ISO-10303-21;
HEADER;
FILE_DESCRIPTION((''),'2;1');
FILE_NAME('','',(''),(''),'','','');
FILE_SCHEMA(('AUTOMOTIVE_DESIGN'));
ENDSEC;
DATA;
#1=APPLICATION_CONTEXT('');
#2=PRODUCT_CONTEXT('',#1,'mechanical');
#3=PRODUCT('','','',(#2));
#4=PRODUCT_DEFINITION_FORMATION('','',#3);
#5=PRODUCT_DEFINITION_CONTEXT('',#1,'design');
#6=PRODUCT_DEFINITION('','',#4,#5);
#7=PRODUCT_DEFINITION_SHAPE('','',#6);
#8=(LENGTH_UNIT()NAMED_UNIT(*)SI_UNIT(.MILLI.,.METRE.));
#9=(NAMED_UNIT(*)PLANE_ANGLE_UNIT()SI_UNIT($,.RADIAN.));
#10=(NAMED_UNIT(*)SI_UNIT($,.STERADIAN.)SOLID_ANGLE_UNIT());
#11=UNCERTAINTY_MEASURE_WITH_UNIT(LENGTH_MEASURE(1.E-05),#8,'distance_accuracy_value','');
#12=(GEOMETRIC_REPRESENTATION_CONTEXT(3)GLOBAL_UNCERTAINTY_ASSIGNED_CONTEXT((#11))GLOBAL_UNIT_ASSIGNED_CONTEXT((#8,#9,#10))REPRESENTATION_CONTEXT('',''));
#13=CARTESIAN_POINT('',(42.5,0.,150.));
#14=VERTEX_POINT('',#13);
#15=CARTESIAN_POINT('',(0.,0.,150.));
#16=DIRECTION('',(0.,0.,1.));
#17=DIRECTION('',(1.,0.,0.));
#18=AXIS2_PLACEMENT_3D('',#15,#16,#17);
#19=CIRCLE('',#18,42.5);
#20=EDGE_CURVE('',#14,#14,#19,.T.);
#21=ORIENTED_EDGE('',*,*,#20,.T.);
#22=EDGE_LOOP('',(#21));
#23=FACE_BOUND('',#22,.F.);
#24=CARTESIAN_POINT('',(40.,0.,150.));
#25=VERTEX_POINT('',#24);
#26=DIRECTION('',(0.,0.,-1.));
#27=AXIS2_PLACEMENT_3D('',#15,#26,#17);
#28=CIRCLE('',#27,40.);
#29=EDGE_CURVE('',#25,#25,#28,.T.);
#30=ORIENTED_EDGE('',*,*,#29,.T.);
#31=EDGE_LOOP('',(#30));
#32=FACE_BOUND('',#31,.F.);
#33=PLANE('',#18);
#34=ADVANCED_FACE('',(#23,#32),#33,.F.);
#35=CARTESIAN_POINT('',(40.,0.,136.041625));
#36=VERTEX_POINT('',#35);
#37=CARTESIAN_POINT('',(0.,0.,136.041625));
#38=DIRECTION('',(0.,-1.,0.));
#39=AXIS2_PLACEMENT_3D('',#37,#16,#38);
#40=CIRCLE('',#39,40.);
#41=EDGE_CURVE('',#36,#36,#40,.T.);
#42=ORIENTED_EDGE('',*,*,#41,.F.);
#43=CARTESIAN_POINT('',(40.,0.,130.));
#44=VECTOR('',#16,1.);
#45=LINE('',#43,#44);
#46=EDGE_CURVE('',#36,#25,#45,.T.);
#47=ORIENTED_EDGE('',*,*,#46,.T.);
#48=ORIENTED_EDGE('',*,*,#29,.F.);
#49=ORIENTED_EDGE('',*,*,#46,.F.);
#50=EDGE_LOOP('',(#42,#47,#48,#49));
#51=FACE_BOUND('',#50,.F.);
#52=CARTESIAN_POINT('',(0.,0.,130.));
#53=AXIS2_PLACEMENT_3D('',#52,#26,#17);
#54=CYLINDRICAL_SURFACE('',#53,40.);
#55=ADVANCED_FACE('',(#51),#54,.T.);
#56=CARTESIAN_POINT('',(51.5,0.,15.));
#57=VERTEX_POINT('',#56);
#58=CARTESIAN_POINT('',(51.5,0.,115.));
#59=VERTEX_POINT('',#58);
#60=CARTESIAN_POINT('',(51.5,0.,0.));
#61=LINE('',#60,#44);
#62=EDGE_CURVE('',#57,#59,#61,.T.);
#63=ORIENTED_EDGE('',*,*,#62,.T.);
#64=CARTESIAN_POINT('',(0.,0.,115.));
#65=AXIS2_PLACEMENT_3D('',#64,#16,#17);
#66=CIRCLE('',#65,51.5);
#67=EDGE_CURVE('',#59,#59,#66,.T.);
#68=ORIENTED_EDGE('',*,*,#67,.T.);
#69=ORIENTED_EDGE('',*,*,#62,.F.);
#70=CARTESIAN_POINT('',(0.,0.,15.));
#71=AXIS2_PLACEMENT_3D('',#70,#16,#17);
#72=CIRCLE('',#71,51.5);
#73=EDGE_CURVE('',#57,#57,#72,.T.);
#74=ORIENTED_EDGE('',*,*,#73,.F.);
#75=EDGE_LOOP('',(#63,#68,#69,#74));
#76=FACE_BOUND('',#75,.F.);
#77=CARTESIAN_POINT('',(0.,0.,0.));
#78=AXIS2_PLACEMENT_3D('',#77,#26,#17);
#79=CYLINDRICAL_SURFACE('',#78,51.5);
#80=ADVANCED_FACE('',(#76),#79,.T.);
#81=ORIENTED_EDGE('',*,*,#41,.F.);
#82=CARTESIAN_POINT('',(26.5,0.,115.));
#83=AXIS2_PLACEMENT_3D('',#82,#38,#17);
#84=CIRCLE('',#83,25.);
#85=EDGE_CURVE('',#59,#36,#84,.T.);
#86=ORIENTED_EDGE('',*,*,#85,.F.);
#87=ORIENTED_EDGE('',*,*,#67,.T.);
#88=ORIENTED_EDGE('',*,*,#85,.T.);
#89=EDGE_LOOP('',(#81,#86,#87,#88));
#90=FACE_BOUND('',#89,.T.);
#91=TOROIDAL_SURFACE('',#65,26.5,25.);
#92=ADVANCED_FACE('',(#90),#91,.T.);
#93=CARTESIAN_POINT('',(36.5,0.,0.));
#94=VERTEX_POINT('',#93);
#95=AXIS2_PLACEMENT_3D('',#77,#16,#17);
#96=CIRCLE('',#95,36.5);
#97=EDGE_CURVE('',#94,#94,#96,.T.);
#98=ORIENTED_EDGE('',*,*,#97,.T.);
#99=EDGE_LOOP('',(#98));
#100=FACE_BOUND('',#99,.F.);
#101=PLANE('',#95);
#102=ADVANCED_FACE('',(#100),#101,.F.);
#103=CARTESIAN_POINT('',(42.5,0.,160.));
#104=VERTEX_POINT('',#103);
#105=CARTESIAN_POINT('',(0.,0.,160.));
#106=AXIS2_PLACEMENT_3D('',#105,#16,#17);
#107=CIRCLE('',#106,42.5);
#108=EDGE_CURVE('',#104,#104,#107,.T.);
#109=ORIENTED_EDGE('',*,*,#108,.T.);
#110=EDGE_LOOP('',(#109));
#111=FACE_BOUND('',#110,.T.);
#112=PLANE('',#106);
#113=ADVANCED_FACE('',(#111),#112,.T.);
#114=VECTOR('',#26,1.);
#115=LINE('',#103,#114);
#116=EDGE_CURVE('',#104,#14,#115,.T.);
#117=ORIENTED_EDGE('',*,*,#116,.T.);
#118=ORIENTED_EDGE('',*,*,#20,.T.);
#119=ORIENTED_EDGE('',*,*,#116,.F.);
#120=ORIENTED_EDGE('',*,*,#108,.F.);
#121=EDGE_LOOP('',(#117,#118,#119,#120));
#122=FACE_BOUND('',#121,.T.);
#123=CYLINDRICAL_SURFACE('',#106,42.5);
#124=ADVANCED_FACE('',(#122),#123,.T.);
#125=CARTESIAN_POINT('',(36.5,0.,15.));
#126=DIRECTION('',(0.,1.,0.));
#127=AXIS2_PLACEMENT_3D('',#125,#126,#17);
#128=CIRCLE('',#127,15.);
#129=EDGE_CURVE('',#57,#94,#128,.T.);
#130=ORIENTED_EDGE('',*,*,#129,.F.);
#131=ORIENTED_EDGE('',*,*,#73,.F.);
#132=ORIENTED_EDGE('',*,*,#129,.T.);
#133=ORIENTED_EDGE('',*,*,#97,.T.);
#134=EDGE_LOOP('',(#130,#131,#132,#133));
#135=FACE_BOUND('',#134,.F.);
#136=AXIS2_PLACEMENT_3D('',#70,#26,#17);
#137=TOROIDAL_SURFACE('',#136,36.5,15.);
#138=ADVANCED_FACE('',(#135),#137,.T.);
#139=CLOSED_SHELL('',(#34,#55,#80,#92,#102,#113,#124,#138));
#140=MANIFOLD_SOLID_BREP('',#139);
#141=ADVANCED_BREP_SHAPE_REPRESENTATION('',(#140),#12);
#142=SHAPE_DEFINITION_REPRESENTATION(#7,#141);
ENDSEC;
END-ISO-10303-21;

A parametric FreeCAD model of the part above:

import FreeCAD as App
import Part
import Sketcher
Q = App.Units.Quantity


def edges_at(feature, points):
    """Names of the edges that pass closest to the given points."""
    edges = feature.Shape.Edges
    near = lambda p: min(range(len(edges)), key=lambda i: edges[i].distToShape(Part.Vertex(*p))[0])
    return sorted({f"Edge{near(p) + 1}" for p in points})

doc = App.newDocument("Part")
body = doc.addObject("PartDesign::Body", "Body")

sketch1 = body.newObject("Sketcher::SketchObject", "Sketch")
sketch1.AttachmentSupport = (doc.getObject("XY_Plane"), [""])
sketch1.MapMode = "FlatFace"
sketch1.addGeometry(Part.Circle(App.Vector(0, 0, 0), App.Vector(0, 0, 1), 52), False)
sketch1.addConstraint([
    Sketcher.Constraint("Coincident", 0, 3, -1, 1),
    Sketcher.Constraint("Diameter", 0, Q("103 mm")),
])
pad1 = body.newObject("PartDesign::Pad", "Pad")
pad1.Profile = sketch1
pad1.Length = 140
doc.recompute()

fillet = body.newObject("PartDesign::Fillet", "Fillet")
fillet.Base = (pad1, edges_at(pad1, [(-51.5, 0, 140)]))
fillet.Radius = 25
doc.recompute()

fillet2 = body.newObject("PartDesign::Fillet", "Fillet001")
fillet2.Base = (fillet, edges_at(fillet, [(-51.5, 0, 0)]))
fillet2.Radius = 15

sketch2 = body.newObject("Sketcher::SketchObject", "Sketch001")
sketch2.AttachmentSupport = (doc.getObject("XY_Plane"), [""])
sketch2.MapMode = "FlatFace"
sketch2.AttachmentOffset = App.Placement(App.Vector(0, 0, 130), App.Rotation())
sketch2.addGeometry(Part.Circle(App.Vector(0, 0, 0), App.Vector(0, 0, 1), 40), False)
sketch2.addConstraint([
    Sketcher.Constraint("Coincident", 0, 3, -1, 1),
    Sketcher.Constraint("Diameter", 0, Q("80 mm")),
])
pad2 = body.newObject("PartDesign::Pad", "Pad001")
pad2.Profile = sketch2
pad2.Length = 30

sketch3 = body.newObject("Sketcher::SketchObject", "Sketch002")
sketch3.AttachmentSupport = (doc.getObject("XY_Plane"), [""])
sketch3.MapMode = "FlatFace"
sketch3.AttachmentOffset = App.Placement(App.Vector(0, 0, 160), App.Rotation())
sketch3.addGeometry(Part.Circle(App.Vector(0, 0, 0), App.Vector(0, 0, 1), 42), False)
sketch3.addConstraint([
    Sketcher.Constraint("Coincident", 0, 3, -1, 1),
    Sketcher.Constraint("Diameter", 0, Q("85 mm")),
])
pad3 = body.newObject("PartDesign::Pad", "Pad002")
pad3.Profile = sketch3
pad3.Length = 10
pad3.Reversed = True

doc.recompute()
